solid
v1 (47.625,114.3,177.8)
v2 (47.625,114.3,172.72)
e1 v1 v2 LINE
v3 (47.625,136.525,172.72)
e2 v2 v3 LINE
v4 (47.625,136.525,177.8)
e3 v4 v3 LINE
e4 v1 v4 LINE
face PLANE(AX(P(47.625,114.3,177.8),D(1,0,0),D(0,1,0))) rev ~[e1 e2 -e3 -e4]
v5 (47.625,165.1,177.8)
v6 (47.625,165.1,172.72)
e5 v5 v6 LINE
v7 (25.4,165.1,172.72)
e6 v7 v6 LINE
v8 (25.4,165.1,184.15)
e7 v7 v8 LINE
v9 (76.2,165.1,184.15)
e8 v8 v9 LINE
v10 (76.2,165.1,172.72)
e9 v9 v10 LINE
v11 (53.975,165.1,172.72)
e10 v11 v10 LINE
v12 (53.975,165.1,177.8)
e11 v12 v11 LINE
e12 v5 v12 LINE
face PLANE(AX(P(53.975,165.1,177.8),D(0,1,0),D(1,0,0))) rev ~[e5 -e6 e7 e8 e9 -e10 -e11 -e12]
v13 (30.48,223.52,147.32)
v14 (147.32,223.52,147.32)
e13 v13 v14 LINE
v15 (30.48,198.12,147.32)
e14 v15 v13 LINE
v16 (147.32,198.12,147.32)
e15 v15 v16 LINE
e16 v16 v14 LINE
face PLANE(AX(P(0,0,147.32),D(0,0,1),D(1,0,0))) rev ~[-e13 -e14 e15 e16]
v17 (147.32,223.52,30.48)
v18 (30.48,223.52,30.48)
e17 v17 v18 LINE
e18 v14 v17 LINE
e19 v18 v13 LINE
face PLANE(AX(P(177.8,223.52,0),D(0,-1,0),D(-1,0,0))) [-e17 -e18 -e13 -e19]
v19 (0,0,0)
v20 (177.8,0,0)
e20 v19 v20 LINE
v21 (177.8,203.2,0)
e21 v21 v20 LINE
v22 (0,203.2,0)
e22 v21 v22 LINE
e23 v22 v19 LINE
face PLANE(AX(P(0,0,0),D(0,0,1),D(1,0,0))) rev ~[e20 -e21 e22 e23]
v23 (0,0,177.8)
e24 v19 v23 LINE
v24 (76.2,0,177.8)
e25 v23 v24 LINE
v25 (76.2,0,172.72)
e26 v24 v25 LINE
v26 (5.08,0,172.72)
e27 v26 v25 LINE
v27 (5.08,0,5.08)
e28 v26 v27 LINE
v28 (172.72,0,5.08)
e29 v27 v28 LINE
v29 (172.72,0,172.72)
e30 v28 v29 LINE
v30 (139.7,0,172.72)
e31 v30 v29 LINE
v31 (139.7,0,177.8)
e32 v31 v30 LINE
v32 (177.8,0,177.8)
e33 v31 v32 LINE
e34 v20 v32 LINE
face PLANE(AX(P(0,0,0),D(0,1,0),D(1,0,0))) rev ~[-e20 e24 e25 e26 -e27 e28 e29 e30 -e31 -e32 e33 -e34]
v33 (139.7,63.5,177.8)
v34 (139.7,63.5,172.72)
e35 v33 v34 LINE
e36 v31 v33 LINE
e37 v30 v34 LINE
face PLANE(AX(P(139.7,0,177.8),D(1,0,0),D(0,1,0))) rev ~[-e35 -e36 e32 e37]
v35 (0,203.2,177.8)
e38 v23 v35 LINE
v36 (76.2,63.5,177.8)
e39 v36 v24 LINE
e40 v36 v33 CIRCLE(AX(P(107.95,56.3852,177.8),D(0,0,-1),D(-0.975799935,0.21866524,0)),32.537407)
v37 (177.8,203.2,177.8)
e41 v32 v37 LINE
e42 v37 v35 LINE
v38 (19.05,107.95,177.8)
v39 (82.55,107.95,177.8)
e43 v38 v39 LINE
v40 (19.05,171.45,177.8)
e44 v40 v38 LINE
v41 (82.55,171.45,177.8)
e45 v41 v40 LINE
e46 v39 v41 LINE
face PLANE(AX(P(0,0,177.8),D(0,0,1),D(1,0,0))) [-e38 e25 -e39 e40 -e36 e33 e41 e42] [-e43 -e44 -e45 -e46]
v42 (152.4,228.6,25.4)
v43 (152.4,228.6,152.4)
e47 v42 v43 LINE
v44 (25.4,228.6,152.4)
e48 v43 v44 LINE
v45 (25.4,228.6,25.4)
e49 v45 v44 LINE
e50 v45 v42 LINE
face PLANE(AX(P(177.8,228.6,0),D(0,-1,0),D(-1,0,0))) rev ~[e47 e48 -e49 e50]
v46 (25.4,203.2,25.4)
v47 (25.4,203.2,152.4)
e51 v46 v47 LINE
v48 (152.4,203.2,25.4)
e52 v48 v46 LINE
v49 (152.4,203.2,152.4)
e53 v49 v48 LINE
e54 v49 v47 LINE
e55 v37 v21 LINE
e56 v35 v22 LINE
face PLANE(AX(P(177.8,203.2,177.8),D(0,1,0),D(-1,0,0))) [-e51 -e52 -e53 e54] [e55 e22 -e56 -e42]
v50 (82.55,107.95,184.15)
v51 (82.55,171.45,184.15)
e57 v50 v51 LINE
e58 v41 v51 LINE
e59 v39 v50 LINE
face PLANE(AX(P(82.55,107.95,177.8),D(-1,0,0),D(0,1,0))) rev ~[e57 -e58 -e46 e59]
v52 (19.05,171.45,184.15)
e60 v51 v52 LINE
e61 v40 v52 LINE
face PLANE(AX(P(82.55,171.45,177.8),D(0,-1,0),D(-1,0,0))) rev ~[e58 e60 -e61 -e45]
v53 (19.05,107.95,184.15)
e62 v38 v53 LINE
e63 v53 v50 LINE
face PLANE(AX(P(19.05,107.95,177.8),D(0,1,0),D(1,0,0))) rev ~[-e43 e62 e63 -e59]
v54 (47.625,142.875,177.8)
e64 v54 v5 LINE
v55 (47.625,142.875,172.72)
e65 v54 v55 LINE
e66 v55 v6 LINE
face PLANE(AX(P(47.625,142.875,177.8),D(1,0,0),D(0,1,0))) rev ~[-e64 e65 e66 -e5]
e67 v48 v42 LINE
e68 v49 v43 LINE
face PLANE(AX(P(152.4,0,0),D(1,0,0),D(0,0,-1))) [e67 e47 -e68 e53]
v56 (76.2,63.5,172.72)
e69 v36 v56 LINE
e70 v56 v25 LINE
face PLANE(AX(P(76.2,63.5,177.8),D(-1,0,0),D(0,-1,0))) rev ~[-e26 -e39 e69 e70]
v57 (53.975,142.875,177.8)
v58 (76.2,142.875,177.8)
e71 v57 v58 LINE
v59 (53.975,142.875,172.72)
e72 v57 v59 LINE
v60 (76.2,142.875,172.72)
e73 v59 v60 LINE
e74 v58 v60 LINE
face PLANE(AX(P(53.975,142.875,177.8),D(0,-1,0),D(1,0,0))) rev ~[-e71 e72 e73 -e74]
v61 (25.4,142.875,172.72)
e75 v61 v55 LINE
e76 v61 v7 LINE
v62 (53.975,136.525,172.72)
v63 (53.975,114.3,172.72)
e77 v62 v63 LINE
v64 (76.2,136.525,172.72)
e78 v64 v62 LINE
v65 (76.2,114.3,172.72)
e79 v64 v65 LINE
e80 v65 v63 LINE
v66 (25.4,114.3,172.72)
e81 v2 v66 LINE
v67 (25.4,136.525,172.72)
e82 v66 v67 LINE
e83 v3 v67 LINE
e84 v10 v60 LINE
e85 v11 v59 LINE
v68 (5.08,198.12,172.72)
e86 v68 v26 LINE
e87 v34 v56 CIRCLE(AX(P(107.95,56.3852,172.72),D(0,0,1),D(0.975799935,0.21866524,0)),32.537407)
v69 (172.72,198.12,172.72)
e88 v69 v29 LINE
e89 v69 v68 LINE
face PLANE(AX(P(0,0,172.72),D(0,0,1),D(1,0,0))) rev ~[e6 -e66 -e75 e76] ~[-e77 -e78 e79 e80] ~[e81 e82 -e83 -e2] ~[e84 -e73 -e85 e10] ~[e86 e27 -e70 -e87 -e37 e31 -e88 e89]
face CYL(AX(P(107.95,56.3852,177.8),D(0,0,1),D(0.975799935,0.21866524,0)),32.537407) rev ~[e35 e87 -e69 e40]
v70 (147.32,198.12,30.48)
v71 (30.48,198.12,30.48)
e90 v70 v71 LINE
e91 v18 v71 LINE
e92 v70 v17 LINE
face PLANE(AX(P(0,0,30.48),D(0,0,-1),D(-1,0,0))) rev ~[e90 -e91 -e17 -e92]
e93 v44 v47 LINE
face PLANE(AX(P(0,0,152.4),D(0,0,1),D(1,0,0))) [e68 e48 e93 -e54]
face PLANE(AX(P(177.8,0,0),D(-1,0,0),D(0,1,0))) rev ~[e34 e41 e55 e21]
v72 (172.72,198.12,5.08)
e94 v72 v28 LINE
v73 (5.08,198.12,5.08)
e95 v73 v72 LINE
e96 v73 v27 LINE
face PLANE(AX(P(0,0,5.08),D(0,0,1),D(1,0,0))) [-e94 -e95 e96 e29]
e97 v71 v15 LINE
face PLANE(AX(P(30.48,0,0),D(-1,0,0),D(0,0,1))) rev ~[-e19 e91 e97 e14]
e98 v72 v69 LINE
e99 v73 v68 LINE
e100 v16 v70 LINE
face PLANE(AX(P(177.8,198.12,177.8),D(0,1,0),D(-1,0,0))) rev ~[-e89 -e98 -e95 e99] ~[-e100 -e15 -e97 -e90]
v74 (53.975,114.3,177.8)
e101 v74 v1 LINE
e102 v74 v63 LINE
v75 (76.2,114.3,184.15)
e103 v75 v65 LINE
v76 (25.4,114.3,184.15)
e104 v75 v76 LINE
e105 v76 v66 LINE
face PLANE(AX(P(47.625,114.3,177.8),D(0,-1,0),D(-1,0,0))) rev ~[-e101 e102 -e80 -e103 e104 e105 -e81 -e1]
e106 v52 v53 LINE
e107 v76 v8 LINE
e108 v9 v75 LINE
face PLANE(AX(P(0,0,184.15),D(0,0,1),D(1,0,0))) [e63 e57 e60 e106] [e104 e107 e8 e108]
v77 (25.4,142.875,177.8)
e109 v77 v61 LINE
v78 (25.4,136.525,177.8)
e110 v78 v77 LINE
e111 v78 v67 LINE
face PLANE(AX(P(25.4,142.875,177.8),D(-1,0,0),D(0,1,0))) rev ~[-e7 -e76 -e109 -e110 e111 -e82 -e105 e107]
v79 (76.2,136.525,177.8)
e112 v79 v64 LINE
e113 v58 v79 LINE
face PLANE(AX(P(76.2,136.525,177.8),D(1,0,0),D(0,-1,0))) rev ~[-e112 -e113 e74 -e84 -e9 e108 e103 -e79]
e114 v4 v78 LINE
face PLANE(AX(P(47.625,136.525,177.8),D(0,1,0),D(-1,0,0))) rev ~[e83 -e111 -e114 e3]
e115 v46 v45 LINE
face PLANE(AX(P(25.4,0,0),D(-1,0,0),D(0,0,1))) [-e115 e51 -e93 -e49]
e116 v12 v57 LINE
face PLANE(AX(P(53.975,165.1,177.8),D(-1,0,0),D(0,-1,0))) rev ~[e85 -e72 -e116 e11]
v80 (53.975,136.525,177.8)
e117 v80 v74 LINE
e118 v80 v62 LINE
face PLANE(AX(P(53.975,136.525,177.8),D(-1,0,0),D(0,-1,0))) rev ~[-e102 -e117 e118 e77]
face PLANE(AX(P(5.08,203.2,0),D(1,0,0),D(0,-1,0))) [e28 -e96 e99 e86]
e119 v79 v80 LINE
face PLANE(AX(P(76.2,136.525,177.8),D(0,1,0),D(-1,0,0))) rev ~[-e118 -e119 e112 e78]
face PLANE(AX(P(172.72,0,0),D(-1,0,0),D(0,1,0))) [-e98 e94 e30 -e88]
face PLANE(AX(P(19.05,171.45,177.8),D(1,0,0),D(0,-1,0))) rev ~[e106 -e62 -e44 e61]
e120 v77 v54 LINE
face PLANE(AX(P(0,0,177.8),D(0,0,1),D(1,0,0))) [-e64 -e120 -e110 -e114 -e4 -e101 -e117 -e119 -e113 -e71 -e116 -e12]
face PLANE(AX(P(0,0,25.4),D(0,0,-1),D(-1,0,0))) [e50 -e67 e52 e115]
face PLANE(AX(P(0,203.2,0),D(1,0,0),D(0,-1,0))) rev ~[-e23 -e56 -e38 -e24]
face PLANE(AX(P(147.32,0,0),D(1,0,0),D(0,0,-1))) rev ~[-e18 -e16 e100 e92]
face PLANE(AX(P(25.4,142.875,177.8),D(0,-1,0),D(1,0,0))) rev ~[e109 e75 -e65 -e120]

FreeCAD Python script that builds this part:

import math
import FreeCAD as App
import Part
import Sketcher
from FreeCAD import Vector
Q = App.Units.Quantity


def faces_at(feature, points):
    """Names of the faces that lie closest to the given points."""
    faces = feature.Shape.Faces
    near = lambda p: min(range(len(faces)), key=lambda i: faces[i].distToShape(Part.Vertex(*p))[0])
    return sorted({f"Face{near(p) + 1}" for p in points})


def add_polygon(sketch, points):
    """Adds a closed chain of lines whose ends are joined by coincident constraints."""
    first, n = sketch.GeometryCount, len(points)
    for a, b in zip(points, points[1:] + points[:1]):
        sketch.addGeometry(Part.LineSegment(App.Vector(*a, 0), App.Vector(*b, 0)), False)
    for i in range(n):
        sketch.addConstraint(Sketcher.Constraint("Coincident", first + i, 2, first + (i + 1) % n, 1))

doc = App.newDocument("Part")
params = doc.addObject("Spreadsheet::Sheet", "Params")
for row, (alias, value) in enumerate([
    ("sketch1_width", "7 in"),
    ("sketch1_height", "9 in"),
    ("pad1_length", "7 in"),
    ("sketch2_width", "7 in"),
    ("sketch2_height", "1 in"),
    ("pocket1_length", "1 in"),
    ("sketch3_width", "1 in"),
    ("sketch3_height", "7 in"),
    ("pocket2_length", "1 in"),
    ("sketch4_width", "7 in"),
    ("sketch4_height", "1 in"),
    ("pocket3_length", "1 in"),
    ("sketch5_width", "1 in"),
    ("sketch5_height", "7 in"),
    ("pocket4_length", "1 in"),
    ("thickness_wall", "0.2 in"),
    ("pocket5_length", "1 in"),
    ("sketch7_width", "2 in"),
    ("pad2_length", "0.25 in"),
    ("sketch8_width", "2.5 in"),
    ("sketch8_radius", "1.281 in"),
    ("pocket6_length", "0.25 in"),
], start=1):
    params.set(f"A{row}", alias)
    params.set(f"B{row}", "=" + value)
    params.setAlias(f"B{row}", alias)

body = doc.addObject("PartDesign::Body", "Body")

# Sketch on XY plane
sketch1 = doc.addObject("Sketcher::SketchObject", "Sketch")
body.addObject(sketch1)
sketch1.AttachmentSupport = (doc.XY_Plane, [""])
sketch1.MapMode = "FlatFace"
add_polygon(sketch1, [(0, 0), (177.8, 0), (177.8, 228.6), (0, 228.6)])  # lines 0-3
sketch1.addConstraint(Sketcher.Constraint("Horizontal", 0))
sketch1.addConstraint(Sketcher.Constraint("Vertical", 1))
sketch1.addConstraint(Sketcher.Constraint("Horizontal", 2))
sketch1.addConstraint(Sketcher.Constraint("Vertical", 3))
sketch1.addConstraint(Sketcher.Constraint("Coincident", 3, 2, -1, 1))
sketch1.addConstraint(Sketcher.Constraint("DistanceX", 0, 1, 0, 2, Q("7 in")))
sketch1.addConstraint(Sketcher.Constraint("DistanceY", 1, 1, 1, 2, Q("9 in")))
sketch1.setExpression("Constraints[9]", "Params.sketch1_width")
sketch1.setExpression("Constraints[10]", "Params.sketch1_height")
pad1 = doc.addObject("PartDesign::Pad", "Pad")
body.addObject(pad1)
pad1.Profile = sketch1
pad1.setExpression("Length", "Params.pad1_length")

# Sketch on XY plane
sketch2 = doc.addObject("Sketcher::SketchObject", "Sketch001")
body.addObject(sketch2)
sketch2.AttachmentSupport = (doc.XY_Plane, [""])
sketch2.MapMode = "FlatFace"
sketch2.AttachmentOffset = App.Placement(Vector(0, 0, 7 * 25.4), App.Rotation())
add_polygon(sketch2, [(177.8, 203.2), (177.8, 228.6), (0, 228.6), (0, 203.2)])  # lines 0-3
sketch2.addConstraint(Sketcher.Constraint("Vertical", 0))
sketch2.addConstraint(Sketcher.Constraint("Horizontal", 1))
sketch2.addConstraint(Sketcher.Constraint("Vertical", 2))
sketch2.addConstraint(Sketcher.Constraint("Horizontal", 3))
sketch2.addConstraint(Sketcher.Constraint("PointOnObject", 1, 2, -2))
sketch2.addConstraint(Sketcher.Constraint("DistanceX", 1, 2, 1, 1, Q("7 in")))
sketch2.addConstraint(Sketcher.Constraint("DistanceY", 0, 1, 0, 2, Q("1 in")))
sketch2.addConstraint(Sketcher.Constraint("DistanceY", -1, 1, 0, 2, Q("9 in")))
sketch2.setExpression("Constraints[9]", "Params.sketch2_width")
sketch2.setExpression("Constraints[10]", "Params.sketch2_height")
pocket1 = doc.addObject("PartDesign::Pocket", "Pocket")
body.addObject(pocket1)
pocket1.Profile = sketch2
pocket1.setExpression("Length", "Params.pocket1_length")

# Sketch on YZ plane
sketch3 = doc.addObject("Sketcher::SketchObject", "Sketch002")
body.addObject(sketch3)
sketch3.AttachmentSupport = (doc.YZ_Plane, [""])
sketch3.MapMode = "FlatFace"
sketch3.AttachmentOffset = App.Placement(Vector(0, 0, 7 * 25.4), App.Rotation())
add_polygon(sketch3, [(203.2, 177.8), (203.2, 0), (228.6, 0), (228.6, 177.8)])  # lines 0-3
sketch3.addConstraint(Sketcher.Constraint("Vertical", 0))
sketch3.addConstraint(Sketcher.Constraint("Horizontal", 1))
sketch3.addConstraint(Sketcher.Constraint("Vertical", 2))
sketch3.addConstraint(Sketcher.Constraint("Horizontal", 3))
sketch3.addConstraint(Sketcher.Constraint("PointOnObject", 0, 2, -1))
sketch3.addConstraint(Sketcher.Constraint("DistanceX", 1, 1, 1, 2, Q("1 in")))
sketch3.addConstraint(Sketcher.Constraint("DistanceY", 0, 2, 0, 1, Q("7 in")))
sketch3.addConstraint(Sketcher.Constraint("DistanceX", -1, 1, 0, 2, Q("8 in")))
sketch3.setExpression("Constraints[9]", "Params.sketch3_width")
sketch3.setExpression("Constraints[10]", "Params.sketch3_height")
pocket2 = doc.addObject("PartDesign::Pocket", "Pocket001")
body.addObject(pocket2)
pocket2.Profile = sketch3
pocket2.setExpression("Length", "Params.pocket2_length")

# Sketch on XY plane
sketch4 = doc.addObject("Sketcher::SketchObject", "Sketch003")
body.addObject(sketch4)
sketch4.AttachmentSupport = (doc.XY_Plane, [""])
sketch4.MapMode = "FlatFace"
add_polygon(sketch4, [(0, 203.2), (0, 228.6), (177.8, 228.6), (177.8, 203.2)])  # lines 0-3
sketch4.addConstraint(Sketcher.Constraint("Vertical", 0))
sketch4.addConstraint(Sketcher.Constraint("Horizontal", 1))
sketch4.addConstraint(Sketcher.Constraint("Vertical", 2))
sketch4.addConstraint(Sketcher.Constraint("Horizontal", 3))
sketch4.addConstraint(Sketcher.Constraint("PointOnObject", 0, 2, -2))
sketch4.addConstraint(Sketcher.Constraint("DistanceX", 1, 1, 1, 2, Q("7 in")))
sketch4.addConstraint(Sketcher.Constraint("DistanceY", 0, 1, 0, 2, Q("1 in")))
sketch4.addConstraint(Sketcher.Constraint("DistanceY", -1, 1, 0, 2, Q("9 in")))
sketch4.setExpression("Constraints[9]", "Params.sketch4_width")
sketch4.setExpression("Constraints[10]", "Params.sketch4_height")
pocket3 = doc.addObject("PartDesign::Pocket", "Pocket002")
body.addObject(pocket3)
pocket3.Profile = sketch4
pocket3.setExpression("Length", "Params.pocket3_length")
pocket3.Reversed = True

# Sketch on YZ plane
sketch5 = doc.addObject("Sketcher::SketchObject", "Sketch004")
body.addObject(sketch5)
sketch5.AttachmentSupport = (doc.YZ_Plane, [""])
sketch5.MapMode = "FlatFace"
add_polygon(sketch5, [(203.2, 177.8), (228.6, 177.8), (228.6, 0), (203.2, 0)])  # lines 0-3
sketch5.addConstraint(Sketcher.Constraint("Horizontal", 0))
sketch5.addConstraint(Sketcher.Constraint("Vertical", 1))
sketch5.addConstraint(Sketcher.Constraint("Horizontal", 2))
sketch5.addConstraint(Sketcher.Constraint("Vertical", 3))
sketch5.addConstraint(Sketcher.Constraint("PointOnObject", 1, 2, -1))
sketch5.addConstraint(Sketcher.Constraint("DistanceX", 0, 1, 0, 2, Q("1 in")))
sketch5.addConstraint(Sketcher.Constraint("DistanceY", 1, 2, 1, 1, Q("7 in")))
sketch5.addConstraint(Sketcher.Constraint("DistanceX", -1, 1, 0, 2, Q("9 in")))
sketch5.setExpression("Constraints[9]", "Params.sketch5_width")
sketch5.setExpression("Constraints[10]", "Params.sketch5_height")
pocket4 = doc.addObject("PartDesign::Pocket", "Pocket003")
body.addObject(pocket4)
pocket4.Profile = sketch5
pocket4.setExpression("Length", "Params.pocket4_length")
pocket4.Reversed = True
doc.recompute()

thickness = doc.addObject("PartDesign::Thickness", "Thickness")
body.addObject(thickness)
thickness.Base = (pocket4, faces_at(pocket4, [(59.267, 0, 59.267)]))
thickness.setExpression("Value", "Params.thickness_wall")
thickness.Reversed = True
thickness.Join = "Intersection"

# Sketch on XY plane
sketch6 = doc.addObject("Sketcher::SketchObject", "Sketch005")
body.addObject(sketch6)
sketch6.AttachmentSupport = (doc.XY_Plane, [""])
sketch6.MapMode = "FlatFace"
sketch6.AttachmentOffset = App.Placement(Vector(0, 0, 7 * 25.4), App.Rotation())
add_polygon(sketch6, [(47.625, 165.1), (25.4, 165.1), (25.4, 142.875), (47.625, 142.875)])  # lines 0-3
add_polygon(sketch6, [(76.2, 165.1), (53.975, 165.1), (53.975, 142.875), (76.2, 142.875)])  # lines 4-7
add_polygon(sketch6, [(47.625, 136.525), (25.4, 136.525), (25.4, 114.3), (47.625, 114.3)])  # lines 8-11
add_polygon(sketch6, [(76.2, 114.3), (76.2, 136.525), (53.975, 136.525), (53.975, 114.3)])  # lines 12-15
sketch6.addConstraint(Sketcher.Constraint("Horizontal", 0))
sketch6.addConstraint(Sketcher.Constraint("Vertical", 1))
sketch6.addConstraint(Sketcher.Constraint("Horizontal", 2))
sketch6.addConstraint(Sketcher.Constraint("Vertical", 3))
sketch6.addConstraint(Sketcher.Constraint("Horizontal", 4))
sketch6.addConstraint(Sketcher.Constraint("Vertical", 5))
sketch6.addConstraint(Sketcher.Constraint("Horizontal", 6))
sketch6.addConstraint(Sketcher.Constraint("Vertical", 7))
sketch6.addConstraint(Sketcher.Constraint("Horizontal", 8))
sketch6.addConstraint(Sketcher.Constraint("Vertical", 9))
sketch6.addConstraint(Sketcher.Constraint("Horizontal", 10))
sketch6.addConstraint(Sketcher.Constraint("Vertical", 11))
sketch6.addConstraint(Sketcher.Constraint("Vertical", 12))
sketch6.addConstraint(Sketcher.Constraint("Horizontal", 13))
sketch6.addConstraint(Sketcher.Constraint("Vertical", 14))
sketch6.addConstraint(Sketcher.Constraint("Horizontal", 15))
sketch6.addConstraint(Sketcher.Constraint("Horizontal", 3, 2, 4, 2))
sketch6.addConstraint(Sketcher.Constraint("Horizontal", 2, 2, 5, 2))
sketch6.addConstraint(Sketcher.Constraint("Horizontal", 11, 2, 12, 2))
sketch6.addConstraint(Sketcher.Constraint("Horizontal", 10, 2, 14, 2))
sketch6.addConstraint(Sketcher.Constraint("Vertical", 1, 2, 8, 2))
sketch6.addConstraint(Sketcher.Constraint("Vertical", 3, 2, 10, 2))
sketch6.addConstraint(Sketcher.Constraint("Vertical", 7, 2, 12, 2))
sketch6.addConstraint(Sketcher.Constraint("Vertical", 5, 2, 13, 2))
sketch6.addConstraint(Sketcher.Constraint("Equal", 2, 4))
sketch6.addConstraint(Sketcher.Constraint("Equal", 15, 1))
sketch6.addConstraint(Sketcher.Constraint("Equal", 7, 9))
sketch6.addConstraint(Sketcher.Constraint("DistanceX", -1, 1, 0, 2, Q("1 in")))
sketch6.addConstraint(Sketcher.Constraint("DistanceX", 1, 2, 6, 2, Q("2 in")))
sketch6.addConstraint(Sketcher.Constraint("DistanceY", 9, 2, 0, 2, Q("2 in")))
sketch6.addConstraint(Sketcher.Constraint("DistanceX", 3, 2, 4, 2, Q("0.25 in")))
sketch6.addConstraint(Sketcher.Constraint("DistanceY", -1, 1, 0, 2, Q("6.5 in")))
pocket5 = doc.addObject("PartDesign::Pocket", "Pocket004")
body.addObject(pocket5)
pocket5.Profile = sketch6
pocket5.setExpression("Length", "Params.pocket5_length")

# Sketch on XY plane
sketch7 = doc.addObject("Sketcher::SketchObject", "Sketch006")
body.addObject(sketch7)
sketch7.AttachmentSupport = (doc.XY_Plane, [""])
sketch7.MapMode = "FlatFace"
sketch7.AttachmentOffset = App.Placement(Vector(0, 0, 7 * 25.4), App.Rotation())
add_polygon(sketch7, [(82.55, 107.95), (82.55, 171.45), (19.05, 171.45), (19.05, 107.95)])  # lines 0-3
add_polygon(sketch7, [(25.4, 114.3), (25.4, 165.1), (76.2, 165.1), (76.2, 114.3)])  # lines 4-7
sketch7.addConstraint(Sketcher.Constraint("Vertical", 0))
sketch7.addConstraint(Sketcher.Constraint("Horizontal", 1))
sketch7.addConstraint(Sketcher.Constraint("Vertical", 2))
sketch7.addConstraint(Sketcher.Constraint("Horizontal", 3))
sketch7.addConstraint(Sketcher.Constraint("Vertical", 4))
sketch7.addConstraint(Sketcher.Constraint("Horizontal", 5))
sketch7.addConstraint(Sketcher.Constraint("Vertical", 6))
sketch7.addConstraint(Sketcher.Constraint("Horizontal", 7))
sketch7.addConstraint(Sketcher.Constraint("Equal", 3, 0))
sketch7.addConstraint(Sketcher.Constraint("Equal", 7, 4))
sketch7.addConstraint(Sketcher.Constraint("DistanceX", 5, 1, 5, 2, Q("2 in")))
sketch7.addConstraint(Sketcher.Constraint("DistanceX", -1, 1, 4, 2, Q("1 in")))
sketch7.addConstraint(Sketcher.Constraint("DistanceX", 1, 2, 4, 2, Q("0.25 in")))
sketch7.addConstraint(Sketcher.Constraint("DistanceY", 4, 2, 1, 2, Q("0.25 in")))
sketch7.addConstraint(Sketcher.Constraint("DistanceX", 5, 2, 0, 2, Q("0.25 in")))
sketch7.addConstraint(Sketcher.Constraint("DistanceY", -1, 1, 4, 2, Q("6.5 in")))
sketch7.setExpression("Constraints[18]", "Params.sketch7_width")
pad2 = doc.addObject("PartDesign::Pad", "Pad001")
body.addObject(pad2)
pad2.Profile = sketch7
pad2.setExpression("Length", "Params.pad2_length")

# Sketch on XY plane
sketch8 = doc.addObject("Sketcher::SketchObject", "Sketch007")
body.addObject(sketch8)
sketch8.AttachmentSupport = (doc.XY_Plane, [""])
sketch8.MapMode = "FlatFace"
sketch8.AttachmentOffset = App.Placement(Vector(0, 0, 7 * 25.4), App.Rotation())
sketch8.addGeometry(Part.LineSegment(Vector(76.2, 63.5, 0), Vector(76.2, 0, 0)), False)
sketch8.addGeometry(Part.LineSegment(Vector(76.2, 0, 0), Vector(139.7, 0, 0)), False)
sketch8.addGeometry(Part.LineSegment(Vector(139.7, 0, 0), Vector(139.7, 63.5, 0)), False)
sketch8.addGeometry(Part.ArcOfCircle(Part.Circle(Vector(107.95, 56.3852, 0), Vector(0, 0, 1), 32.537407), math.radians(12.630648), math.radians(167.369352)), False)
sketch8.addConstraint(Sketcher.Constraint("Coincident", 0, 2, 1, 1))
sketch8.addConstraint(Sketcher.Constraint("Coincident", 1, 2, 2, 1))
sketch8.addConstraint(Sketcher.Constraint("Coincident", 2, 2, 3, 1))
sketch8.addConstraint(Sketcher.Constraint("Coincident", 3, 2, 0, 1))
sketch8.addConstraint(Sketcher.Constraint("Vertical", 0))
sketch8.addConstraint(Sketcher.Constraint("Horizontal", 1))
sketch8.addConstraint(Sketcher.Constraint("Vertical", 2))
sketch8.addConstraint(Sketcher.Constraint("PointOnObject", 0, 2, -1))
sketch8.addConstraint(Sketcher.Constraint("Horizontal", 2, 2, 3, 2))
sketch8.addConstraint(Sketcher.Constraint("Equal", 1, 0))
sketch8.addConstraint(Sketcher.Constraint("DistanceX", 1, 1, 1, 2, Q("2.5 in")))
sketch8.addConstraint(Sketcher.Constraint("Radius", 3, Q("1.281 in")))
sketch8.addConstraint(Sketcher.Constraint("DistanceX", -1, 1, 0, 2, Q("3 in")))
sketch8.setExpression("Constraints[10]", "Params.sketch8_width")
sketch8.setExpression("Constraints[11]", "Params.sketch8_radius")
pocket6 = doc.addObject("PartDesign::Pocket", "Pocket005")
body.addObject(pocket6)
pocket6.Profile = sketch8
pocket6.setExpression("Length", "Params.pocket6_length")

doc.recompute()
